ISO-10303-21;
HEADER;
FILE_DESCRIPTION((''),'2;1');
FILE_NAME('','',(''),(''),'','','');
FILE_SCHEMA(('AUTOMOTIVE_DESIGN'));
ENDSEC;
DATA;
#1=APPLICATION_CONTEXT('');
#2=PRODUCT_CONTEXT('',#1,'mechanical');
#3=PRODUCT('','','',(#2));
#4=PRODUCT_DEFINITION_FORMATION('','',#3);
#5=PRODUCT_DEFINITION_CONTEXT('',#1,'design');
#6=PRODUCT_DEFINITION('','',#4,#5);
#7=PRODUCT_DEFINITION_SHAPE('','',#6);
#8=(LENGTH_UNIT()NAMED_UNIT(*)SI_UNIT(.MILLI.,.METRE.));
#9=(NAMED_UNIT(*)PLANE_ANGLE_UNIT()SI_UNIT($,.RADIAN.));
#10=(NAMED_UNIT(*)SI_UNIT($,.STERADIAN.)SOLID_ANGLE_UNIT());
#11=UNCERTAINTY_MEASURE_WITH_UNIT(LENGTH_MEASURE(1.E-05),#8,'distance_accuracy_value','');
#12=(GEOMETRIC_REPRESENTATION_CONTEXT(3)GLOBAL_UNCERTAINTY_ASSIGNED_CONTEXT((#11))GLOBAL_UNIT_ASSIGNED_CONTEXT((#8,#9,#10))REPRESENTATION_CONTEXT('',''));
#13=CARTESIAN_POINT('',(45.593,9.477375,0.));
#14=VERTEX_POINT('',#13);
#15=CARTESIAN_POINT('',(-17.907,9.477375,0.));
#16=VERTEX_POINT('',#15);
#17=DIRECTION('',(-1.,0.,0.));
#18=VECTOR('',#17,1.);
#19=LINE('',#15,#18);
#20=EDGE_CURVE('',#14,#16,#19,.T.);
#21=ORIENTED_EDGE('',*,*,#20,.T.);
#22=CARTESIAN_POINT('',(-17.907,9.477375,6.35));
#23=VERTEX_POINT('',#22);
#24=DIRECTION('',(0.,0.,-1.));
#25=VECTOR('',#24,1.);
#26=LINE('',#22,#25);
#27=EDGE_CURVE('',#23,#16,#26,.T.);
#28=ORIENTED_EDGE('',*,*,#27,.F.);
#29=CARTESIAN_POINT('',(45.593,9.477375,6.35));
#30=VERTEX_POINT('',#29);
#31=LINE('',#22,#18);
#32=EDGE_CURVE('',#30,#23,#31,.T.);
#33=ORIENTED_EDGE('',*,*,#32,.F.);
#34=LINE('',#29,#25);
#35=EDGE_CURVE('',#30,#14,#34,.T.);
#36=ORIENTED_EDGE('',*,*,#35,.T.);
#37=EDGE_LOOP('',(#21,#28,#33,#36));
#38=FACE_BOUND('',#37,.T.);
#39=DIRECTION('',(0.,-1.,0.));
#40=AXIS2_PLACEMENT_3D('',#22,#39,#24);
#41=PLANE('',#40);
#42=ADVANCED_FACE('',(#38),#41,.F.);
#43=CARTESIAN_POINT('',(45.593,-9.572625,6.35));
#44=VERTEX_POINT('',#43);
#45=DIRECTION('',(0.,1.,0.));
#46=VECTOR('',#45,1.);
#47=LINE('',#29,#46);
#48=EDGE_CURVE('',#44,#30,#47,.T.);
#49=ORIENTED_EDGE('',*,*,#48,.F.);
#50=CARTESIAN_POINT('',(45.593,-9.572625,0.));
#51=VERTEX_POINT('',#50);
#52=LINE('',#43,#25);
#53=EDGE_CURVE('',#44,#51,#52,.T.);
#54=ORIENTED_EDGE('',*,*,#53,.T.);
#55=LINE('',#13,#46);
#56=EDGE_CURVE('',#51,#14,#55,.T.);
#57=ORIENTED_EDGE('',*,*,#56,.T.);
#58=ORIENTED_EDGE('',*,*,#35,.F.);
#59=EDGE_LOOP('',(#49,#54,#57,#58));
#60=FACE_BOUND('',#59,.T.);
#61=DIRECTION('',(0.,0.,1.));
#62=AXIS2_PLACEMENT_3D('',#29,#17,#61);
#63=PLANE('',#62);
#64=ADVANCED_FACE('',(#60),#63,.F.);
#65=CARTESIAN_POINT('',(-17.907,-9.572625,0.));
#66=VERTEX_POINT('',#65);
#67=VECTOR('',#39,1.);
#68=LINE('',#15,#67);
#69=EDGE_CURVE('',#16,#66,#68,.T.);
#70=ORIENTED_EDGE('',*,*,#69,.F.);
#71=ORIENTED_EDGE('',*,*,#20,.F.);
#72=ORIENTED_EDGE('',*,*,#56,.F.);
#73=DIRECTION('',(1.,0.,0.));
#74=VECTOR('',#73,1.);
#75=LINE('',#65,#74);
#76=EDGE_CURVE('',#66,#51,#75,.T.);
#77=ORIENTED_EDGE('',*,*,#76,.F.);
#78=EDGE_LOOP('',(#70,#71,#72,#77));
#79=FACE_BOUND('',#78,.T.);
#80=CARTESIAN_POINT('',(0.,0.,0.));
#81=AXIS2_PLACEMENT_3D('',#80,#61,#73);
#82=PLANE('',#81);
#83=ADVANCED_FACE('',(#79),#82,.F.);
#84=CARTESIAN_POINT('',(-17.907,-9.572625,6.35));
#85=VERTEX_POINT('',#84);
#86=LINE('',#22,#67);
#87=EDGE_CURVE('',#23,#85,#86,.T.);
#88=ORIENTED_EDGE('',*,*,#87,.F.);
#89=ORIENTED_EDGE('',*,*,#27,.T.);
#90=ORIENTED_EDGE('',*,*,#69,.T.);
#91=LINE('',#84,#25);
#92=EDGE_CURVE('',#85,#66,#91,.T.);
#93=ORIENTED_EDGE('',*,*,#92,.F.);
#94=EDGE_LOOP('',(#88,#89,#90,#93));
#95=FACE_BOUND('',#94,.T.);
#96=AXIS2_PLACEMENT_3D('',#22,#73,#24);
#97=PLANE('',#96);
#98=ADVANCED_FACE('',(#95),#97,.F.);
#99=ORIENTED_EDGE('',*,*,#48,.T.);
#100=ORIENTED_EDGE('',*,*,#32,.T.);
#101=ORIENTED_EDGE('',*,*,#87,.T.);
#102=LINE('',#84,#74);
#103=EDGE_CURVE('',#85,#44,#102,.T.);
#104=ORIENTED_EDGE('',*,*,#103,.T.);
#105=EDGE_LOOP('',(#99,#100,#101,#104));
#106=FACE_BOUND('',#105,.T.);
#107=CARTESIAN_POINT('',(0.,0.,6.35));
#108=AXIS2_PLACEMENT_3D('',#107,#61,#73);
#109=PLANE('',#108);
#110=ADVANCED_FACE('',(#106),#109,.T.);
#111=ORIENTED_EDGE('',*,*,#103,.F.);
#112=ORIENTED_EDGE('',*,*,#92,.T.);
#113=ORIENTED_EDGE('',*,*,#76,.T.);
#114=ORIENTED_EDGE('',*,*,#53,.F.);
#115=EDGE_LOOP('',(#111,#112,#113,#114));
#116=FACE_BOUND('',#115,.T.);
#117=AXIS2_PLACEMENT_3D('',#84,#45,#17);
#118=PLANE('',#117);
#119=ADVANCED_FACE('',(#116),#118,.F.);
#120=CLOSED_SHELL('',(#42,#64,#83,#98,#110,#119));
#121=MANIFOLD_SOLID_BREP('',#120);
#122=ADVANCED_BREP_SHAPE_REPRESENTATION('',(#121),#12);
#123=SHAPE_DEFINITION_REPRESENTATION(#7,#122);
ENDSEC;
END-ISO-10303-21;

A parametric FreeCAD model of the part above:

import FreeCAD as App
import Part
import Sketcher
from FreeCAD import Vector
Q = App.Units.Quantity

doc = App.newDocument("Part")
body = doc.addObject("PartDesign::Body", "Body")

sketch1 = body.newObject("Sketcher::SketchObject", "Sketch")
sketch1.AttachmentSupport = (doc.getObject("XY_Plane"), [""])
sketch1.MapMode = "FlatFace"
sketch1.addGeometry(Part.LineSegment(Vector(-18, 9, 0), Vector(-18, -10, 0)), False)
sketch1.addGeometry(Part.LineSegment(Vector(-18, -10, 0), Vector(46, -10, 0)), False)
sketch1.addGeometry(Part.LineSegment(Vector(46, -10, 0), Vector(46, 9, 0)), False)
sketch1.addGeometry(Part.LineSegment(Vector(46, 9, 0), Vector(-18, 9, 0)), False)
sketch1.addConstraint(Sketcher.Constraint("Coincident", 0, 2, 1, 1))
sketch1.addConstraint(Sketcher.Constraint("Coincident", 1, 2, 2, 1))
sketch1.addConstraint(Sketcher.Constraint("Coincident", 2, 2, 3, 1))
sketch1.addConstraint(Sketcher.Constraint("Coincident", 3, 2, 0, 1))
sketch1.addConstraint(Sketcher.Constraint("Vertical", 0))
sketch1.addConstraint(Sketcher.Constraint("Horizontal", 1))
sketch1.addConstraint(Sketcher.Constraint("Vertical", 2))
sketch1.addConstraint(Sketcher.Constraint("Horizontal", 3))
sketch1.addConstraint(Sketcher.Constraint("DistanceX", 1, 1, 1, 2, Q("2.5 in")))
sketch1.addConstraint(Sketcher.Constraint("DistanceY", 0, 2, 0, 1, Q("0.75 in")))
sketch1.addConstraint(Sketcher.Constraint("DistanceX", 0, 2, -1, 1, Q("0.705 in")))
sketch1.addConstraint(Sketcher.Constraint("DistanceY", 0, 2, -1, 1, Q("9.572625 mm")))
pad1 = body.newObject("PartDesign::Pad", "Pad")
pad1.Profile = sketch1
pad1.Length = Q("0.25 in")

doc.recompute()
